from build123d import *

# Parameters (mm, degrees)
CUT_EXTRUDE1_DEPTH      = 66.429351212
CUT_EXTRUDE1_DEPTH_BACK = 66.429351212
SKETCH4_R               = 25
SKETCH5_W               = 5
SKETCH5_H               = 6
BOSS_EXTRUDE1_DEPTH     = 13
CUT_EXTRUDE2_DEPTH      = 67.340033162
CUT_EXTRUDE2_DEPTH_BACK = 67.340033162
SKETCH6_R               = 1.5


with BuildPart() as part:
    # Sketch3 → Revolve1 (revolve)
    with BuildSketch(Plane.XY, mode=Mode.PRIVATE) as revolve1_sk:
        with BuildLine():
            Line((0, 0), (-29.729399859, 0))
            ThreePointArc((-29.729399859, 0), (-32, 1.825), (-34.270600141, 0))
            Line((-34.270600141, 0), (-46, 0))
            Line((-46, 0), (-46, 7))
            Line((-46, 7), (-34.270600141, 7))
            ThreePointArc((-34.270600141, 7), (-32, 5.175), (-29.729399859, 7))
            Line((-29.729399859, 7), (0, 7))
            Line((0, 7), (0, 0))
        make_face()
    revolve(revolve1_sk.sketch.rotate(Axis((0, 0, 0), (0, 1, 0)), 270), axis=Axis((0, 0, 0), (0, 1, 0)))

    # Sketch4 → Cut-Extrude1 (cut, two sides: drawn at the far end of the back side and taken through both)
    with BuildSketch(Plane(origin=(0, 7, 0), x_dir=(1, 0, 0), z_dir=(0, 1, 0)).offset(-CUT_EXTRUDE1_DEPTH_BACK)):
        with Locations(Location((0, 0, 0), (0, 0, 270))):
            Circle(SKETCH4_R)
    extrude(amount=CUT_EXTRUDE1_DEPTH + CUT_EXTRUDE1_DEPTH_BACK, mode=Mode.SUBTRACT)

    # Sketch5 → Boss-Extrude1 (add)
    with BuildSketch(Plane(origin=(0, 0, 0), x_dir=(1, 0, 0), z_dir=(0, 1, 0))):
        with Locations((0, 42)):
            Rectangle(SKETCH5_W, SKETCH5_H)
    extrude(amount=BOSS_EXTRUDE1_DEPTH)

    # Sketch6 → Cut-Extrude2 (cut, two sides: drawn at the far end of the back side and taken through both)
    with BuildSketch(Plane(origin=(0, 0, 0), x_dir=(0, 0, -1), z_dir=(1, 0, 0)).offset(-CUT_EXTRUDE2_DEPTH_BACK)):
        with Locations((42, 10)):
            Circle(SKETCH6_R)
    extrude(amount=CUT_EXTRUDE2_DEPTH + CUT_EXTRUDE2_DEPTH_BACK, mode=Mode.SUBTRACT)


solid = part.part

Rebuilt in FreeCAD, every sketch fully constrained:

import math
import FreeCAD as App
import Part
import Sketcher
from FreeCAD import Vector


def add_polygon(sketch, points):
    """Adds a closed chain of lines whose ends are joined by coincident constraints."""
    first, n = sketch.GeometryCount, len(points)
    for a, b in zip(points, points[1:] + points[:1]):
        sketch.addGeometry(Part.LineSegment(App.Vector(*a, 0), App.Vector(*b, 0)), False)
    for i in range(n):
        sketch.addConstraint(Sketcher.Constraint("Coincident", first + i, 2, first + (i + 1) % n, 1))

doc = App.newDocument("Part")
body = doc.addObject("PartDesign::Body", "Body")

# Sketch on XY plane
sketch1 = body.newObject("Sketcher::SketchObject", "Sketch")
sketch1.AttachmentSupport = (doc.getObject("XY_Plane"), [""])
sketch1.MapMode = "FlatFace"
sketch1.addGeometry([
    Part.LineSegment(Vector(-29.7, 0, 0), Vector(0, 0, 0)),  # 0
    Part.LineSegment(Vector(0, 0, 0), Vector(0, 7, 0)),  # 1
    Part.LineSegment(Vector(0, 7, 0), Vector(-29.7, 7, 0)),  # 2
    Part.ArcOfCircle(Part.Circle(Vector(-32, 7.5, 0), Vector(0, 0, 1), 2.3), math.radians(-168), math.radians(-12)),  # 3
    Part.LineSegment(Vector(-34.3, 7, 0), Vector(-46, 7, 0)),  # 4
    Part.LineSegment(Vector(-46, 7, 0), Vector(-46, 0, 0)),  # 5
    Part.LineSegment(Vector(-46, 0, 0), Vector(-34.3, 0, 0)),  # 6
    Part.ArcOfCircle(Part.Circle(Vector(-32, -0.5, 0), Vector(0, 0, 1), 2.3), math.radians(12), math.radians(168)),  # 7
], False)
sketch1.addConstraint([
    Sketcher.Constraint("Coincident", 0, 2, 1, 1),
    Sketcher.Constraint("Coincident", 1, 2, 2, 1),
    Sketcher.Constraint("Coincident", 2, 2, 3, 2),
    Sketcher.Constraint("Coincident", 3, 1, 4, 1),
    Sketcher.Constraint("Coincident", 4, 2, 5, 1),
    Sketcher.Constraint("Coincident", 5, 2, 6, 1),
    Sketcher.Constraint("Coincident", 6, 2, 7, 2),
    Sketcher.Constraint("Coincident", 7, 1, 0, 1),
    Sketcher.Constraint("Horizontal", 0),
    Sketcher.Constraint("Vertical", 1),
    Sketcher.Constraint("Horizontal", 2),
    Sketcher.Constraint("Horizontal", 4),
    Sketcher.Constraint("Vertical", 5),
    Sketcher.Constraint("Horizontal", 6),
    Sketcher.Constraint("Coincident", 0, 2, -1, 1),
    Sketcher.Constraint("Equal", 3, 7),
    Sketcher.Constraint("PointOnObject", 5, 2, -1),
    Sketcher.Constraint("Horizontal", 2, 2, 3, 1),
    Sketcher.Constraint("Vertical", 3, 3, 7, 3),
    Sketcher.Constraint("Vertical", 3, 1, 6, 2),
    Sketcher.Constraint("DistanceY", 1, 1, 1, 2, 7.0),
    Sketcher.Constraint("DistanceX", 3, 3, -1, 1, 32.0),
    Sketcher.Constraint("DistanceX", 4, 2, -1, 1, 46.0),
    Sketcher.Constraint("Radius", 3, 2.325),
    Sketcher.Constraint("DistanceY", 7, 3, 3, 3, 8.0),
])
revolution = body.newObject("PartDesign::Revolution", "Revolution")
revolution.Profile = sketch1
revolution.ReferenceAxis = (sketch1, ["V_Axis"])
revolution.Angle = 360

# Sketch on XZ plane
sketch2 = body.newObject("Sketcher::SketchObject", "Sketch001")
sketch2.AttachmentSupport = (doc.getObject("XZ_Plane"), [""])
sketch2.MapMode = "FlatFace"
sketch2.AttachmentOffset = App.Placement(Vector(0, 0, -7), App.Rotation())
sketch2.addGeometry(Part.Circle(Vector(0, 0, 0), Vector(0, 0, 1), 25), False)
sketch2.addConstraint([
    Sketcher.Constraint("Coincident", 0, 3, -1, 1),
    Sketcher.Constraint("Diameter", 0, 50.0),
])
pocket1 = body.newObject("PartDesign::Pocket", "Pocket")
pocket1.Profile = sketch2
pocket1.Type = "ThroughAll"
pocket1.Midplane = True

# Sketch on XZ plane
sketch3 = body.newObject("Sketcher::SketchObject", "Sketch002")
sketch3.AttachmentSupport = (doc.getObject("XZ_Plane"), [""])
sketch3.MapMode = "FlatFace"
add_polygon(sketch3, [(-2, -45), (-2, -39), (2, -39), (2, -45)])  # lines 0-3
sketch3.addConstraint([
    Sketcher.Constraint("Vertical", 0),
    Sketcher.Constraint("Horizontal", 1),
    Sketcher.Constraint("Vertical", 2),
    Sketcher.Constraint("Horizontal", 3),
    Sketcher.Constraint("DistanceX", 1, 1, 1, 2, 5.0),
    Sketcher.Constraint("DistanceY", 0, 1, 0, 2, 6.0),
    Sketcher.Constraint("DistanceY", 0, 2, -1, 1, 39.0),
    Sketcher.Constraint("DistanceX", 0, 2, -1, 1, 2.5),
])
pad1 = body.newObject("PartDesign::Pad", "Pad")
pad1.Profile = sketch3
pad1.Length = 13
pad1.Reversed = True

# Sketch on YZ plane
sketch4 = body.newObject("Sketcher::SketchObject", "Sketch003")
sketch4.AttachmentSupport = (doc.getObject("YZ_Plane"), [""])
sketch4.MapMode = "FlatFace"
sketch4.addGeometry(Part.Circle(Vector(10, -42, 0), Vector(0, 0, 1), 1.5), False)
sketch4.addConstraint([
    Sketcher.Constraint("Diameter", 0, 3.0),
    Sketcher.Constraint("DistanceX", -1, 1, 0, 3, 10.0),
    Sketcher.Constraint("DistanceY", 0, 3, -1, 1, 42.0),
])
pocket2 = body.newObject("PartDesign::Pocket", "Pocket001")
pocket2.Profile = sketch4
pocket2.Type = "ThroughAll"
pocket2.Midplane = True

doc.recompute()
